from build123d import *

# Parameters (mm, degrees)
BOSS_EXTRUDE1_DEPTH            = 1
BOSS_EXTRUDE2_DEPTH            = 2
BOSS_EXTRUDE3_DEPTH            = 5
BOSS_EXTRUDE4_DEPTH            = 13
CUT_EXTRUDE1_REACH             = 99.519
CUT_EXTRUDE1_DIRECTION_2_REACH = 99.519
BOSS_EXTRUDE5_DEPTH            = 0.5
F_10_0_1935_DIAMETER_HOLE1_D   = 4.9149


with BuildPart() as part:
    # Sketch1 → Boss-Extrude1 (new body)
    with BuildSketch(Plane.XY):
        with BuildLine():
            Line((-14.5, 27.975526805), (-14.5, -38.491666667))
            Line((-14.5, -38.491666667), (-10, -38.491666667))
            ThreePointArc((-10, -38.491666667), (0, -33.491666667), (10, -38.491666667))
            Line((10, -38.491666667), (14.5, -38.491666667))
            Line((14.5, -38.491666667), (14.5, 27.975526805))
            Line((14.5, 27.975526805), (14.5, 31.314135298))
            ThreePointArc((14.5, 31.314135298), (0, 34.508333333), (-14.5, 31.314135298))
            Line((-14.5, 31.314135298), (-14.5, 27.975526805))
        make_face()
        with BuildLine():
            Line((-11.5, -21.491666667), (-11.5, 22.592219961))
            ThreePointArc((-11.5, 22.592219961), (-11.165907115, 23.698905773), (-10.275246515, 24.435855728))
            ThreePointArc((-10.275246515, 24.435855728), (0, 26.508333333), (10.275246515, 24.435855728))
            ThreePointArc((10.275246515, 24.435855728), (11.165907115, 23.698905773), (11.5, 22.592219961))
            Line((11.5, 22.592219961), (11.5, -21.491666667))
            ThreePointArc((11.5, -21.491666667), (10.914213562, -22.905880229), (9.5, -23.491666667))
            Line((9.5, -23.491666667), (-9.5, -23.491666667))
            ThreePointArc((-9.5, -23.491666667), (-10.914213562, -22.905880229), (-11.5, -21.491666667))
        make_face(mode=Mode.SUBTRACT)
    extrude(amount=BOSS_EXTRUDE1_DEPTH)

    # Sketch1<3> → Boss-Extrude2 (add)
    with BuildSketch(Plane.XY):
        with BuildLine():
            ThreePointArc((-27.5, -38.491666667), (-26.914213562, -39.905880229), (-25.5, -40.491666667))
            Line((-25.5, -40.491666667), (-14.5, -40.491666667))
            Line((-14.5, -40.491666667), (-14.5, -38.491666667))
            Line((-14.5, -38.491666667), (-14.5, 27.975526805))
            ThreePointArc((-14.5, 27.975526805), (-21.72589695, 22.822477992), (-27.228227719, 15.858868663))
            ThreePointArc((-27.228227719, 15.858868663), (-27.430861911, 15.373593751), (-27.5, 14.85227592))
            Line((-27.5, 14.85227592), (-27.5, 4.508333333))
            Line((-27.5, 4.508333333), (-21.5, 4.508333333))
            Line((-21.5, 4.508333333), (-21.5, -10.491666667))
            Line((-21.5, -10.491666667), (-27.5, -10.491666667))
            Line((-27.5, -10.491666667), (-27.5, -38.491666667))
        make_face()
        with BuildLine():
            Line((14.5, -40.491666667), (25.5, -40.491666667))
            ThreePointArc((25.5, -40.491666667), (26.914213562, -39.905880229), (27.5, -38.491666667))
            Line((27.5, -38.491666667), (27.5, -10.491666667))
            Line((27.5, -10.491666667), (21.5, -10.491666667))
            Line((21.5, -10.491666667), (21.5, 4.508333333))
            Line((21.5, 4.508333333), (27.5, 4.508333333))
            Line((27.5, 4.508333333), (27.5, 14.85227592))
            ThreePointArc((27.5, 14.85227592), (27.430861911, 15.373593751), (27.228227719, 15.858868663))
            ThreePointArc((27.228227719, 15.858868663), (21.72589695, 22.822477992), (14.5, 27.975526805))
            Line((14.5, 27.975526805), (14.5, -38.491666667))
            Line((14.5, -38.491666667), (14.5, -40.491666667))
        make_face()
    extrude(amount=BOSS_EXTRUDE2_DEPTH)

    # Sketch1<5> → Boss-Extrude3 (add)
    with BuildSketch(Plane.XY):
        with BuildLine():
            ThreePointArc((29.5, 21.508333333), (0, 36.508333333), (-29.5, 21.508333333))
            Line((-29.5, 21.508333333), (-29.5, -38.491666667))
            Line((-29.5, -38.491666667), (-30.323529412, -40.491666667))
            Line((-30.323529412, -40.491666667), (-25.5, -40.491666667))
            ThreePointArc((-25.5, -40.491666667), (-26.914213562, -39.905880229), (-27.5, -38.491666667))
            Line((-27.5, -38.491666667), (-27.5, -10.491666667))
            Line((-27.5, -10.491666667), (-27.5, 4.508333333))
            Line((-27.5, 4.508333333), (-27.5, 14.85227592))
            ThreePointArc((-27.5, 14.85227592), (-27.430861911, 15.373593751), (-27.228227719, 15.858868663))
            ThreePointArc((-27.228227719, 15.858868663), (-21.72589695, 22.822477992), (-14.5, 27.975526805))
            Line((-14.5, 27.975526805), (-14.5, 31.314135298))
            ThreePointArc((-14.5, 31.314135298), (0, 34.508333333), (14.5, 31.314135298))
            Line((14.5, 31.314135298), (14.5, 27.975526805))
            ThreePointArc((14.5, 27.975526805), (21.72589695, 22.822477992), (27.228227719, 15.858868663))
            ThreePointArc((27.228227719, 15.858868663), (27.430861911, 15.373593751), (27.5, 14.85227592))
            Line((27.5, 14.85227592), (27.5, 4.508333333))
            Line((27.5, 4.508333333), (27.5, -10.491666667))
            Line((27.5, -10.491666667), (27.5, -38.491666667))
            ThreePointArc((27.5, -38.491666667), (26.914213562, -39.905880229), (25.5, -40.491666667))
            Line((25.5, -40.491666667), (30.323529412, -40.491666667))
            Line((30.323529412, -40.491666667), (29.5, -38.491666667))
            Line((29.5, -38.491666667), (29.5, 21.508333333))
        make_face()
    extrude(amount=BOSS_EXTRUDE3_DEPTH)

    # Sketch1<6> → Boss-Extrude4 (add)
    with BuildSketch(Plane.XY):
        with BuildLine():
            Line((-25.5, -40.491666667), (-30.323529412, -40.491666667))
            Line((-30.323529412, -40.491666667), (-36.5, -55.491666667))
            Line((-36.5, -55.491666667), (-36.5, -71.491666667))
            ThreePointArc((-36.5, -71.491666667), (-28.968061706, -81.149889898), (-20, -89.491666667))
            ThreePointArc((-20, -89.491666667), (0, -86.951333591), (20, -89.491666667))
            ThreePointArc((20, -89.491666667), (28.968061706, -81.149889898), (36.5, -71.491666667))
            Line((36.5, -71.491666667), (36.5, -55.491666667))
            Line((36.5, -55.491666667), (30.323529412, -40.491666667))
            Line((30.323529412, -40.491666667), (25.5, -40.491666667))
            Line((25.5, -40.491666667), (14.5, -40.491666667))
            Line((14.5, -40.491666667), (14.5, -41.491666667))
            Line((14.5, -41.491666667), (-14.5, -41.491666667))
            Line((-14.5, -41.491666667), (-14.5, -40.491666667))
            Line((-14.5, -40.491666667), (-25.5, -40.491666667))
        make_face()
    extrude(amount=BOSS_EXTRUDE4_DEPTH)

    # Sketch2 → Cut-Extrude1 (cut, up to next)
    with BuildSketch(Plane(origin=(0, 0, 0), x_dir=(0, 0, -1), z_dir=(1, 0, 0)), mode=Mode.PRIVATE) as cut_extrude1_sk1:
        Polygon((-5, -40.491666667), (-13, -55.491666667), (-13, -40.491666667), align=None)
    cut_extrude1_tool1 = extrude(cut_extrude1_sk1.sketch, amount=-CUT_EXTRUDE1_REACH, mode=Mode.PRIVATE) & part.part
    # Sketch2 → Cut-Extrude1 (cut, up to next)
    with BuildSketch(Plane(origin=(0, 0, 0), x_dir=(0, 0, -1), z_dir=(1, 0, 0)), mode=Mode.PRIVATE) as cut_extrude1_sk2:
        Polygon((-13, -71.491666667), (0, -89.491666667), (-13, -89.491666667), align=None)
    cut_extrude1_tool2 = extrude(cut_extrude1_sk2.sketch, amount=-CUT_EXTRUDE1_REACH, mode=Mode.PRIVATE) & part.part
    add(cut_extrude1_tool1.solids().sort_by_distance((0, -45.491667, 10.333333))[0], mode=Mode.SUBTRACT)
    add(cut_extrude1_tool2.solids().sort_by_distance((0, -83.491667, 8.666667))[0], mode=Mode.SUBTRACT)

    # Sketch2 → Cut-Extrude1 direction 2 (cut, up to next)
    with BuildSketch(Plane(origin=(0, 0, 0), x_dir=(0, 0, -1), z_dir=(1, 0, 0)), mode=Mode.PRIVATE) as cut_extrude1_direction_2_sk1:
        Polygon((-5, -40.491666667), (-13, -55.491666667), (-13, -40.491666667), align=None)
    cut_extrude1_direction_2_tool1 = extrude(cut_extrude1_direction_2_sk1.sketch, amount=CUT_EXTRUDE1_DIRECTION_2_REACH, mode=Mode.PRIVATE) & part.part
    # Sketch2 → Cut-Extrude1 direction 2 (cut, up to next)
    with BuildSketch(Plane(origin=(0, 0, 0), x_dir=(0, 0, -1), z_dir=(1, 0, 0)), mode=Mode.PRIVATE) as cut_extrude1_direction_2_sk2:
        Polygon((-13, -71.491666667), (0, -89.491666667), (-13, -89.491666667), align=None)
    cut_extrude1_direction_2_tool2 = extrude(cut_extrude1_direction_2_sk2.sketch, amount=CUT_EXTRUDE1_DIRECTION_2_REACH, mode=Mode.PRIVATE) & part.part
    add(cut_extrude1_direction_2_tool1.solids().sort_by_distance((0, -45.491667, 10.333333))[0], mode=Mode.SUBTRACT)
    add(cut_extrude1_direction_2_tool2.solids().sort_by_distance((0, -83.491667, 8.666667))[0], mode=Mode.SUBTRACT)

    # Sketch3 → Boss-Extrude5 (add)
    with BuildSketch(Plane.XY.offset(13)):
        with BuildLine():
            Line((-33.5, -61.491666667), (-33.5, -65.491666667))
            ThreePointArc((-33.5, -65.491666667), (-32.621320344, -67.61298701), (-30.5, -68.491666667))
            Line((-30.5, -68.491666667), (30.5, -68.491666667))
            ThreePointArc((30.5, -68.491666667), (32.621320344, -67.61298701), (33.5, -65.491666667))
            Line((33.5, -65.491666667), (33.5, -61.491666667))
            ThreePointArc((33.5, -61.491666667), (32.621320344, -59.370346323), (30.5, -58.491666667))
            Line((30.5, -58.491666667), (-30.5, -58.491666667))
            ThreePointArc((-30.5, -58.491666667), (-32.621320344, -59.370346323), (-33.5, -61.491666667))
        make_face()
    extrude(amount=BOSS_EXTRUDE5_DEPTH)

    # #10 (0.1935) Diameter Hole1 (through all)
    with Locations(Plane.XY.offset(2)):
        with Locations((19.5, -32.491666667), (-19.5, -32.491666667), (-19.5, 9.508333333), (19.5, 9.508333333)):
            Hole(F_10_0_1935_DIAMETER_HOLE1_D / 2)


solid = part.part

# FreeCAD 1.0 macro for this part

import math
import FreeCAD as App
import Part
import Sketcher

doc = App.newDocument("Part")
body = doc.addObject("PartDesign::Body", "Body")

sketch1 = body.newObject("Sketcher::SketchObject", "Sketch")
sketch1.AttachmentSupport = (doc.getObject("XY_Plane"), [""])
sketch1.MapMode = "FlatFace"
sketch1.addGeometry([
    Part.LineSegment(App.Vector(-14.5, -38.5, 0), App.Vector(-10, -38.5, 0)),
    Part.ArcOfCircle(Part.Circle(App.Vector(0, -46, 0), App.Vector(0, 0, 1), 12.5), math.radians(37), math.radians(143)),
    Part.LineSegment(App.Vector(10, -38.5, 0), App.Vector(14.5, -38.5, 0)),
    Part.LineSegment(App.Vector(14.5, -38.5, 0), App.Vector(14.5, 31.3, 0)),
    Part.ArcOfCircle(Part.Circle(App.Vector(0, 0, 0), App.Vector(0, 0, 1), 34.5), math.radians(65), math.radians(115)),
    Part.LineSegment(App.Vector(-14.5, 31.3, 0), App.Vector(-14.5, -38.5, 0)),
    Part.ArcOfCircle(Part.Circle(App.Vector(-9.5, -21.5, 0), App.Vector(0, 0, 1), 2), math.radians(-180), math.radians(-90)),
    Part.LineSegment(App.Vector(-11.5, -21.5, 0), App.Vector(-11.5, 22.6, 0)),
    Part.ArcOfCircle(Part.Circle(App.Vector(-9.5, 22.6, 0), App.Vector(0, 0, 1), 2), math.radians(113), math.radians(180)),
    Part.ArcOfCircle(Part.Circle(App.Vector(0, 0, 0), App.Vector(0, 0, 1), 26.5), math.radians(67), math.radians(113)),
    Part.ArcOfCircle(Part.Circle(App.Vector(9.5, 22.6, 0), App.Vector(0, 0, 1), 2), math.radians(0), math.radians(67)),
    Part.LineSegment(App.Vector(11.5, 22.6, 0), App.Vector(11.5, -21.5, 0)),
    Part.ArcOfCircle(Part.Circle(App.Vector(9.5, -21.5, 0), App.Vector(0, 0, 1), 2), math.radians(-90), math.radians(0)),
    Part.LineSegment(App.Vector(9.5, -23.5, 0), App.Vector(-9.5, -23.5, 0)),
], False)
sketch1.addConstraint([
    Sketcher.Constraint("Coincident", 0, 2, 1, 2),
    Sketcher.Constraint("Coincident", 1, 1, 2, 1),
    Sketcher.Constraint("Coincident", 2, 2, 3, 1),
    Sketcher.Constraint("Coincident", 3, 2, 4, 1),
    Sketcher.Constraint("Coincident", 4, 2, 5, 1),
    Sketcher.Constraint("Coincident", 5, 2, 0, 1),
    Sketcher.Constraint("Tangent", 6, 1, 7, 1),
    Sketcher.Constraint("Tangent", 7, 2, 8, 2),
    Sketcher.Constraint("Tangent", 8, 1, 9, 2),
    Sketcher.Constraint("Tangent", 9, 1, 10, 2),
    Sketcher.Constraint("Tangent", 10, 1, 11, 1),
    Sketcher.Constraint("Tangent", 11, 2, 12, 2),
    Sketcher.Constraint("Tangent", 12, 1, 13, 1),
    Sketcher.Constraint("Tangent", 13, 2, 6, 2),
    Sketcher.Constraint("Horizontal", 0),
    Sketcher.Constraint("Horizontal", 2),
    Sketcher.Constraint("Vertical", 3),
    Sketcher.Constraint("Vertical", 5),
    Sketcher.Constraint("Vertical", 7),
    Sketcher.Constraint("Vertical", 11),
    Sketcher.Constraint("Horizontal", 13),
    Sketcher.Constraint("Coincident", 4, 3, -1, 1),
    Sketcher.Constraint("Coincident", 9, 3, -1, 1),
    Sketcher.Constraint("Equal", 6, 8),
    Sketcher.Constraint("Equal", 8, 10),
    Sketcher.Constraint("Equal", 10, 12),
    Sketcher.Constraint("Symmetric", 0, 2, 1, 1, -2),
    Sketcher.Constraint("Horizontal", 8, 3, 10, 3),
    Sketcher.Constraint("Horizontal", 3, 2, 4, 2),
    Sketcher.Constraint("Radius", 6, 2.0),
    Sketcher.Constraint("Radius", 1, 12.5),
    Sketcher.Constraint("DistanceX", 13, 2, 13, 1, 19.0),
    Sketcher.Constraint("DistanceX", 0, 1, 0, 2, 4.5),
    Sketcher.Constraint("DistanceX", 0, 2, -1, 1, 10.0),
    Sketcher.Constraint("DistanceY", 0, 2, 6, 3, 17.0),
    Sketcher.Constraint("DistanceY", 3, 1, 3, 2, 69.805802),
    Sketcher.Constraint("Radius", 4, 34.508333),
    Sketcher.Constraint("Radius", 9, 26.508333),
])
pad1 = body.newObject("PartDesign::Pad", "Pad")
pad1.Profile = sketch1
pad1.Length = 1

sketch2 = body.newObject("Sketcher::SketchObject", "Sketch001")
sketch2.AttachmentSupport = (doc.getObject("XY_Plane"), [""])
sketch2.MapMode = "FlatFace"
sketch2.addGeometry([
    Part.ArcOfCircle(Part.Circle(App.Vector(-25.5, -38.5, 0), App.Vector(0, 0, 1), 2), math.radians(-180), math.radians(-90)),
    Part.LineSegment(App.Vector(-25.5, -40.5, 0), App.Vector(-14.5, -40.5, 0)),
    Part.LineSegment(App.Vector(-14.5, -40.5, 0), App.Vector(-14.5, 28, 0)),
    Part.ArcOfCircle(Part.Circle(App.Vector(0, 0, 0), App.Vector(0, 0, 1), 31.5), math.radians(117), math.radians(150)),
    Part.ArcOfCircle(Part.Circle(App.Vector(-25.5, 14.9, 0), App.Vector(0, 0, 1), 2), math.radians(150), math.radians(180)),
    Part.LineSegment(App.Vector(-27.5, 14.9, 0), App.Vector(-27.5, 4.5, 0)),
    Part.LineSegment(App.Vector(-27.5, 4.5, 0), App.Vector(-21.5, 4.5, 0)),
    Part.LineSegment(App.Vector(-21.5, 4.5, 0), App.Vector(-21.5, -10.5, 0)),
    Part.LineSegment(App.Vector(-21.5, -10.5, 0), App.Vector(-27.5, -10.5, 0)),
    Part.LineSegment(App.Vector(-27.5, -10.5, 0), App.Vector(-27.5, -38.5, 0)),
    Part.LineSegment(App.Vector(14.5, -40.5, 0), App.Vector(25.5, -40.5, 0)),
    Part.ArcOfCircle(Part.Circle(App.Vector(25.5, -38.5, 0), App.Vector(0, 0, 1), 2), math.radians(-90), math.radians(0)),
    Part.LineSegment(App.Vector(27.5, -38.5, 0), App.Vector(27.5, -10.5, 0)),
    Part.LineSegment(App.Vector(27.5, -10.5, 0), App.Vector(21.5, -10.5, 0)),
    Part.LineSegment(App.Vector(21.5, -10.5, 0), App.Vector(21.5, 4.5, 0)),
    Part.LineSegment(App.Vector(21.5, 4.5, 0), App.Vector(27.5, 4.5, 0)),
    Part.LineSegment(App.Vector(27.5, 4.5, 0), App.Vector(27.5, 14.9, 0)),
    Part.ArcOfCircle(Part.Circle(App.Vector(25.5, 14.9, 0), App.Vector(0, 0, 1), 2), math.radians(0), math.radians(30)),
    Part.ArcOfCircle(Part.Circle(App.Vector(0, 0, 0), App.Vector(0, 0, 1), 31.5), math.radians(30), math.radians(63)),
    Part.LineSegment(App.Vector(14.5, 28, 0), App.Vector(14.5, -40.5, 0)),
], False)
sketch2.addConstraint([
    Sketcher.Constraint("Tangent", 0, 2, 1, 1),
    Sketcher.Constraint("Coincident", 1, 2, 2, 1),
    Sketcher.Constraint("Coincident", 2, 2, 3, 1),
    Sketcher.Constraint("Tangent", 3, 2, 4, 1),
    Sketcher.Constraint("Tangent", 4, 2, 5, 1),
    Sketcher.Constraint("Coincident", 5, 2, 6, 1),
    Sketcher.Constraint("Coincident", 6, 2, 7, 1),
    Sketcher.Constraint("Coincident", 7, 2, 8, 1),
    Sketcher.Constraint("Coincident", 8, 2, 9, 1),
    Sketcher.Constraint("Tangent", 9, 2, 0, 1),
    Sketcher.Constraint("Tangent", 10, 2, 11, 1),
    Sketcher.Constraint("Tangent", 11, 2, 12, 1),
    Sketcher.Constraint("Coincident", 12, 2, 13, 1),
    Sketcher.Constraint("Coincident", 13, 2, 14, 1),
    Sketcher.Constraint("Coincident", 14, 2, 15, 1),
    Sketcher.Constraint("Coincident", 15, 2, 16, 1),
    Sketcher.Constraint("Tangent", 16, 2, 17, 1),
    Sketcher.Constraint("Tangent", 17, 2, 18, 1),
    Sketcher.Constraint("Coincident", 18, 2, 19, 1),
    Sketcher.Constraint("Coincident", 19, 2, 10, 1),
    Sketcher.Constraint("Horizontal", 1),
    Sketcher.Constraint("Vertical", 2),
    Sketcher.Constraint("Vertical", 5),
    Sketcher.Constraint("Horizontal", 6),
    Sketcher.Constraint("Vertical", 7),
    Sketcher.Constraint("Horizontal", 8),
    Sketcher.Constraint("Vertical", 9),
    Sketcher.Constraint("Horizontal", 10),
    Sketcher.Constraint("Vertical", 12),
    Sketcher.Constraint("Horizontal", 13),
    Sketcher.Constraint("Vertical", 14),
    Sketcher.Constraint("Horizontal", 15),
    Sketcher.Constraint("Vertical", 16),
    Sketcher.Constraint("Vertical", 19),
    Sketcher.Constraint("Coincident", 3, 3, -1, 1),
    Sketcher.Constraint("Coincident", 18, 3, -1, 1),
    Sketcher.Constraint("Equal", 0, 4),
    Sketcher.Constraint("Equal", 4, 11),
    Sketcher.Constraint("Equal", 11, 17),
    Sketcher.Constraint("Equal", 3, 18),
    Sketcher.Constraint("Symmetric", 0, 3, 11, 3, -2),
    Sketcher.Constraint("Symmetric", 7, 2, 13, 2, -2),
    Sketcher.Constraint("Symmetric", 5, 2, 15, 2, -2),
    Sketcher.Constraint("Horizontal", 2, 2, 18, 2),
    Sketcher.Constraint("Vertical", 0, 3, 4, 3),
    Sketcher.Constraint("Radius", 0, 2.0),
    Sketcher.Constraint("DistanceX", 1, 1, 1, 2, 11.0),
    Sketcher.Constraint("DistanceX", 6, 1, 6, 2, 6.0),
    Sketcher.Constraint("DistanceY", 7, 2, 7, 1, 15.0),
    Sketcher.Constraint("DistanceY", 9, 2, 9, 1, 28.0),
    Sketcher.Constraint("Radius", 3, 31.51),
    Sketcher.Constraint("DistanceX", 0, 3, 11, 3, 51.0),
    Sketcher.Constraint("DistanceY", 2, 1, 2, 2, 68.467193),
])
pad2 = body.newObject("PartDesign::Pad", "Pad001")
pad2.Profile = sketch2
pad2.Length = 2

sketch3 = body.newObject("Sketcher::SketchObject", "Sketch002")
sketch3.AttachmentSupport = (doc.getObject("XY_Plane"), [""])
sketch3.MapMode = "FlatFace"
sketch3.addGeometry([
    Part.ArcOfCircle(Part.Circle(App.Vector(0, 0, 0), App.Vector(0, 0, 1), 36.5), math.radians(36), math.radians(144)),
    Part.LineSegment(App.Vector(-29.5, 21.5, 0), App.Vector(-29.5, -38.5, 0)),
    Part.LineSegment(App.Vector(-29.5, -38.5, 0), App.Vector(-30.3, -40.5, 0)),
    Part.LineSegment(App.Vector(-30.3, -40.5, 0), App.Vector(-25.5, -40.5, 0)),
    Part.ArcOfCircle(Part.Circle(App.Vector(-25.5, -38.5, 0), App.Vector(0, 0, 1), 2), math.radians(-180), math.radians(-90)),
    Part.LineSegment(App.Vector(-27.5, -38.5, 0), App.Vector(-27.5, 14.9, 0)),
    Part.ArcOfCircle(Part.Circle(App.Vector(-25.5, 14.9, 0), App.Vector(0, 0, 1), 2), math.radians(150), math.radians(180)),
    Part.ArcOfCircle(Part.Circle(App.Vector(0, 0, 0), App.Vector(0, 0, 1), 31.5), math.radians(117), math.radians(150)),
    Part.LineSegment(App.Vector(-14.5, 28, 0), App.Vector(-14.5, 31.3, 0)),
    Part.ArcOfCircle(Part.Circle(App.Vector(0, 0, 0), App.Vector(0, 0, 1), 34.5), math.radians(65), math.radians(115)),
    Part.LineSegment(App.Vector(14.5, 31.3, 0), App.Vector(14.5, 28, 0)),
    Part.ArcOfCircle(Part.Circle(App.Vector(0, 0, 0), App.Vector(0, 0, 1), 31.5), math.radians(30), math.radians(63)),
    Part.ArcOfCircle(Part.Circle(App.Vector(25.5, 14.9, 0), App.Vector(0, 0, 1), 2), math.radians(0), math.radians(30)),
    Part.LineSegment(App.Vector(27.5, 14.9, 0), App.Vector(27.5, -38.5, 0)),
    Part.ArcOfCircle(Part.Circle(App.Vector(25.5, -38.5, 0), App.Vector(0, 0, 1), 2), math.radians(-90), math.radians(0)),
    Part.LineSegment(App.Vector(25.5, -40.5, 0), App.Vector(30.3, -40.5, 0)),
    Part.LineSegment(App.Vector(30.3, -40.5, 0), App.Vector(29.5, -38.5, 0)),
    Part.LineSegment(App.Vector(29.5, -38.5, 0), App.Vector(29.5, 21.5, 0)),
], False)
sketch3.addConstraint([
    Sketcher.Constraint("Coincident", 0, 2, 1, 1),
    Sketcher.Constraint("Coincident", 1, 2, 2, 1),
    Sketcher.Constraint("Coincident", 2, 2, 3, 1),
    Sketcher.Constraint("Tangent", 3, 2, 4, 2),
    Sketcher.Constraint("Tangent", 4, 1, 5, 1),
    Sketcher.Constraint("Tangent", 5, 2, 6, 2),
    Sketcher.Constraint("Tangent", 6, 1, 7, 2),
    Sketcher.Constraint("Coincident", 7, 1, 8, 1),
    Sketcher.Constraint("Coincident", 8, 2, 9, 2),
    Sketcher.Constraint("Coincident", 9, 1, 10, 1),
    Sketcher.Constraint("Coincident", 10, 2, 11, 2),
    Sketcher.Constraint("Tangent", 11, 1, 12, 2),
    Sketcher.Constraint("Tangent", 12, 1, 13, 1),
    Sketcher.Constraint("Tangent", 13, 2, 14, 2),
    Sketcher.Constraint("Tangent", 14, 1, 15, 1),
    Sketcher.Constraint("Coincident", 15, 2, 16, 1),
    Sketcher.Constraint("Coincident", 16, 2, 17, 1),
    Sketcher.Constraint("Coincident", 17, 2, 0, 1),
    Sketcher.Constraint("Vertical", 1),
    Sketcher.Constraint("Horizontal", 3),
    Sketcher.Constraint("Vertical", 5),
    Sketcher.Constraint("Vertical", 8),
    Sketcher.Constraint("Vertical", 10),
    Sketcher.Constraint("Vertical", 13),
    Sketcher.Constraint("Horizontal", 15),
    Sketcher.Constraint("Vertical", 17),
    Sketcher.Constraint("Coincident", 0, 3, -1, 1),
    Sketcher.Constraint("Coincident", 7, 3, -1, 1),
    Sketcher.Constraint("Coincident", 9, 3, -1, 1),
    Sketcher.Constraint("Coincident", 11, 3, -1, 1),
    Sketcher.Constraint("Equal", 4, 6),
    Sketcher.Constraint("Equal", 7, 11),
    Sketcher.Constraint("Equal", 6, 12),
    Sketcher.Constraint("Equal", 12, 14),
    Sketcher.Constraint("Symmetric", 4, 3, 14, 3, -2),
    Sketcher.Constraint("Symmetric", 1, 2, 16, 2, -2),
    Sketcher.Constraint("Horizontal", 14, 3, 1, 2),
    Sketcher.Constraint("Horizontal", 8, 2, 9, 1),
    Sketcher.Constraint("Equal", 3, 15),
    Sketcher.Constraint("Radius", 4, 2.0),
    Sketcher.Constraint("DistanceY", 1, 2, 1, 1, 60.0),
    Sketcher.Constraint("Radius", 7, 31.51),
    Sketcher.Constraint("DistanceX", 6, 3, 12, 3, 51.0),
    Sketcher.Constraint("DistanceX", 0, 2, 6, 3, 4.0),
    Sketcher.Constraint("DistanceX", 0, 2, 7, 1, 15.0),
    Sketcher.Constraint("Radius", 0, 36.508333),
    Sketcher.Constraint("Radius", 9, 34.508333),
    Sketcher.Constraint("DistanceX", 3, 1, 3, 2, 4.823529),
])
pad3 = body.newObject("PartDesign::Pad", "Pad002")
pad3.Profile = sketch3
pad3.Length = 5

sketch4 = body.newObject("Sketcher::SketchObject", "Sketch003")
sketch4.AttachmentSupport = (doc.getObject("XY_Plane"), [""])
sketch4.MapMode = "FlatFace"
sketch4.addGeometry([
    Part.LineSegment(App.Vector(-30.3, -40.5, 0), App.Vector(-36.5, -55.5, 0)),
    Part.LineSegment(App.Vector(-36.5, -55.5, 0), App.Vector(-36.5, -71.5, 0)),
    Part.ArcOfCircle(Part.Circle(App.Vector(27.8, -29.1, 0), App.Vector(0, 0, 1), 77), math.radians(-146.61), math.radians(-128.37)),
    Part.ArcOfCircle(Part.Circle(App.Vector(0, -167, 0), App.Vector(0, 0, 1), 80), math.radians(76), math.radians(104)),
    Part.ArcOfCircle(Part.Circle(App.Vector(-27.8, -29.1, 0), App.Vector(0, 0, 1), 77), math.radians(-51.63), math.radians(-33.39)),
    Part.LineSegment(App.Vector(36.5, -71.5, 0), App.Vector(36.5, -55.5, 0)),
    Part.LineSegment(App.Vector(36.5, -55.5, 0), App.Vector(30.3, -40.5, 0)),
    Part.LineSegment(App.Vector(30.3, -40.5, 0), App.Vector(14.5, -40.5, 0)),
    Part.LineSegment(App.Vector(14.5, -40.5, 0), App.Vector(14.5, -41.5, 0)),
    Part.LineSegment(App.Vector(14.5, -41.5, 0), App.Vector(-14.5, -41.5, 0)),
    Part.LineSegment(App.Vector(-14.5, -41.5, 0), App.Vector(-14.5, -40.5, 0)),
    Part.LineSegment(App.Vector(-14.5, -40.5, 0), App.Vector(-30.3, -40.5, 0)),
], False)
sketch4.addConstraint([
    Sketcher.Constraint("Coincident", 0, 2, 1, 1),
    Sketcher.Constraint("Coincident", 1, 2, 2, 1),
    Sketcher.Constraint("Coincident", 2, 2, 3, 2),
    Sketcher.Constraint("Coincident", 3, 1, 4, 1),
    Sketcher.Constraint("Coincident", 4, 2, 5, 1),
    Sketcher.Constraint("Coincident", 5, 2, 6, 1),
    Sketcher.Constraint("Coincident", 6, 2, 7, 1),
    Sketcher.Constraint("Coincident", 7, 2, 8, 1),
    Sketcher.Constraint("Coincident", 8, 2, 9, 1),
    Sketcher.Constraint("Coincident", 9, 2, 10, 1),
    Sketcher.Constraint("Coincident", 10, 2, 11, 1),
    Sketcher.Constraint("Coincident", 11, 2, 0, 1),
    Sketcher.Constraint("Vertical", 1),
    Sketcher.Constraint("Vertical", 5),
    Sketcher.Constraint("Horizontal", 7),
    Sketcher.Constraint("Vertical", 8),
    Sketcher.Constraint("Horizontal", 9),
    Sketcher.Constraint("Vertical", 10),
    Sketcher.Constraint("Horizontal", 11),
    Sketcher.Constraint("Equal", 2, 4),
    Sketcher.Constraint("Symmetric", 2, 3, 4, 3, -2),
    Sketcher.Constraint("Symmetric", 0, 2, 5, 2, -2),
    Sketcher.Constraint("Symmetric", 7, 2, 10, 2, -2),
    Sketcher.Constraint("PointOnObject", 3, 3, -2),
    Sketcher.Constraint("Equal", 7, 11),
    Sketcher.Constraint("Radius", 2, 77.0),
    Sketcher.Constraint("Radius", 3, 80.0),
    Sketcher.Constraint("DistanceX", 9, 2, 9, 1, 29.0),
    Sketcher.Constraint("DistanceY", 1, 2, 1, 1, 16.0),
    Sketcher.Constraint("DistanceY", 8, 2, 8, 1, 1.0),
    Sketcher.Constraint("DistanceX", 2, 2, -1, 1, 20.0),
    Sketcher.Constraint("DistanceY", 2, 2, 1, 2, 18.0),
    Sketcher.Constraint("DistanceX", 1, 2, 4, 2, 73.0),
    Sketcher.Constraint("DistanceY", 5, 2, 6, 2, 15.0),
    Sketcher.Constraint("DistanceX", 7, 2, 7, 1, 15.823529),
    Sketcher.Constraint("DistanceY", 2, 3, -1, 1, 29.119093),
])
pad4 = body.newObject("PartDesign::Pad", "Pad003")
pad4.Profile = sketch4
pad4.Length = 13

sketch5 = body.newObject("Sketcher::SketchObject", "Sketch004")
sketch5.AttachmentSupport = (doc.getObject("YZ_Plane"), [""])
sketch5.MapMode = "FlatFace"
sketch5.addGeometry([
    Part.LineSegment(App.Vector(-55, 13, 0), App.Vector(-40, 5, 0)),
    Part.LineSegment(App.Vector(-40, 5, 0), App.Vector(-40, 13, 0)),
    Part.LineSegment(App.Vector(-40, 13, 0), App.Vector(-55, 13, 0)),
], False)
sketch5.addConstraint([
    Sketcher.Constraint("Coincident", 0, 2, 1, 1),
    Sketcher.Constraint("Coincident", 1, 2, 2, 1),
    Sketcher.Constraint("Coincident", 2, 2, 0, 1),
    Sketcher.Constraint("Vertical", 1),
    Sketcher.Constraint("Horizontal", 2),
    Sketcher.Constraint("DistanceX", 2, 2, 2, 1, 15.0),
    Sketcher.Constraint("DistanceY", 1, 1, 1, 2, 8.0),
    Sketcher.Constraint("DistanceY", -1, 1, 0, 2, 5.0),
    Sketcher.Constraint("DistanceX", 0, 2, -1, 1, 40.491667),
])
pocket1 = body.newObject("PartDesign::Pocket", "Pocket")
pocket1.Profile = sketch5
pocket1.Type = "UpToFirst"

sketch6 = body.newObject("Sketcher::SketchObject", "Sketch005")
sketch6.AttachmentSupport = (doc.getObject("YZ_Plane"), [""])
sketch6.MapMode = "FlatFace"
sketch6.addGeometry([
    Part.LineSegment(App.Vector(-89, 0, 0), App.Vector(-71, 13, 0)),
    Part.LineSegment(App.Vector(-71, 13, 0), App.Vector(-89, 13, 0)),
    Part.LineSegment(App.Vector(-89, 13, 0), App.Vector(-89, 0, 0)),
], False)
sketch6.addConstraint([
    Sketcher.Constraint("Coincident", 0, 2, 1, 1),
    Sketcher.Constraint("Coincident", 1, 2, 2, 1),
    Sketcher.Constraint("Coincident", 2, 2, 0, 1),
    Sketcher.Constraint("Horizontal", 1),
    Sketcher.Constraint("Vertical", 2),
    Sketcher.Constraint("PointOnObject", 2, 2, -1),
    Sketcher.Constraint("DistanceX", 1, 2, 1, 1, 18.0),
    Sketcher.Constraint("DistanceY", 2, 2, 2, 1, 13.0),
    Sketcher.Constraint("DistanceX", 0, 2, -1, 1, 71.491667),
])
pocket2 = body.newObject("PartDesign::Pocket", "Pocket001")
pocket2.Profile = sketch6
pocket2.Type = "UpToFirst"

sketch7 = body.newObject("Sketcher::SketchObject", "Sketch006")
sketch7.AttachmentSupport = (doc.getObject("YZ_Plane"), [""])
sketch7.MapMode = "FlatFace"
sketch7.addGeometry([
    Part.LineSegment(App.Vector(-55, 13, 0), App.Vector(-40, 5, 0)),
    Part.LineSegment(App.Vector(-40, 5, 0), App.Vector(-40, 13, 0)),
    Part.LineSegment(App.Vector(-40, 13, 0), App.Vector(-55, 13, 0)),
], False)
sketch7.addConstraint([
    Sketcher.Constraint("Coincident", 0, 2, 1, 1),
    Sketcher.Constraint("Coincident", 1, 2, 2, 1),
    Sketcher.Constraint("Coincident", 2, 2, 0, 1),
    Sketcher.Constraint("Vertical", 1),
    Sketcher.Constraint("Horizontal", 2),
    Sketcher.Constraint("DistanceX", 2, 2, 2, 1, 15.0),
    Sketcher.Constraint("DistanceY", 1, 1, 1, 2, 8.0),
    Sketcher.Constraint("DistanceY", -1, 1, 0, 2, 5.0),
    Sketcher.Constraint("DistanceX", 0, 2, -1, 1, 40.491667),
])
pocket3 = body.newObject("PartDesign::Pocket", "Pocket002")
pocket3.Profile = sketch7
pocket3.Type = "UpToFirst"
pocket3.Reversed = True

sketch8 = body.newObject("Sketcher::SketchObject", "Sketch007")
sketch8.AttachmentSupport = (doc.getObject("YZ_Plane"), [""])
sketch8.MapMode = "FlatFace"
sketch8.addGeometry([
    Part.LineSegment(App.Vector(-89, 0, 0), App.Vector(-71, 13, 0)),
    Part.LineSegment(App.Vector(-71, 13, 0), App.Vector(-89, 13, 0)),
    Part.LineSegment(App.Vector(-89, 13, 0), App.Vector(-89, 0, 0)),
], False)
sketch8.addConstraint([
    Sketcher.Constraint("Coincident", 0, 2, 1, 1),
    Sketcher.Constraint("Coincident", 1, 2, 2, 1),
    Sketcher.Constraint("Coincident", 2, 2, 0, 1),
    Sketcher.Constraint("Horizontal", 1),
    Sketcher.Constraint("Vertical", 2),
    Sketcher.Constraint("PointOnObject", 2, 2, -1),
    Sketcher.Constraint("DistanceX", 1, 2, 1, 1, 18.0),
    Sketcher.Constraint("DistanceY", 2, 2, 2, 1, 13.0),
    Sketcher.Constraint("DistanceX", 0, 2, -1, 1, 71.491667),
])
pocket4 = body.newObject("PartDesign::Pocket", "Pocket003")
pocket4.Profile = sketch8
pocket4.Type = "UpToFirst"
pocket4.Reversed = True

sketch9 = body.newObject("Sketcher::SketchObject", "Sketch008")
sketch9.AttachmentSupport = (doc.getObject("XY_Plane"), [""])
sketch9.MapMode = "FlatFace"
sketch9.AttachmentOffset = App.Placement(App.Vector(0, 0, 13), App.Rotation())
sketch9.addGeometry([
    Part.LineSegment(App.Vector(-33.5, -61.5, 0), App.Vector(-33.5, -65.5, 0)),
    Part.ArcOfCircle(Part.Circle(App.Vector(-30.5, -65.5, 0), App.Vector(0, 0, 1), 3), math.radians(180), math.radians(270)),
    Part.LineSegment(App.Vector(-30.5, -68.5, 0), App.Vector(30.5, -68.5, 0)),
    Part.ArcOfCircle(Part.Circle(App.Vector(30.5, -65.5, 0), App.Vector(0, 0, 1), 3), math.radians(-90), math.radians(0)),
    Part.LineSegment(App.Vector(33.5, -65.5, 0), App.Vector(33.5, -61.5, 0)),
    Part.ArcOfCircle(Part.Circle(App.Vector(30.5, -61.5, 0), App.Vector(0, 0, 1), 3), math.radians(0), math.radians(90)),
    Part.LineSegment(App.Vector(30.5, -58.5, 0), App.Vector(-30.5, -58.5, 0)),
    Part.ArcOfCircle(Part.Circle(App.Vector(-30.5, -61.5, 0), App.Vector(0, 0, 1), 3), math.radians(90), math.radians(180)),
], False)
sketch9.addConstraint([
    Sketcher.Constraint("Tangent", 0, 2, 1, 1),
    Sketcher.Constraint("Tangent", 1, 2, 2, 1),
    Sketcher.Constraint("Tangent", 2, 2, 3, 1),
    Sketcher.Constraint("Tangent", 3, 2, 4, 1),
    Sketcher.Constraint("Tangent", 4, 2, 5, 1),
    Sketcher.Constraint("Tangent", 5, 2, 6, 1),
    Sketcher.Constraint("Tangent", 6, 2, 7, 1),
    Sketcher.Constraint("Tangent", 7, 2, 0, 1),
    Sketcher.Constraint("Vertical", 0),
    Sketcher.Constraint("Horizontal", 2),
    Sketcher.Constraint("Vertical", 4),
    Sketcher.Constraint("Horizontal", 6),
    Sketcher.Constraint("Equal", 1, 3),
    Sketcher.Constraint("Equal", 3, 5),
    Sketcher.Constraint("Equal", 5, 7),
    Sketcher.Constraint("Radius", 1, 3.0),
    Sketcher.Constraint("DistanceX", 2, 1, 2, 2, 61.0),
    Sketcher.Constraint("DistanceY", 0, 2, 0, 1, 4.0),
    Sketcher.Constraint("DistanceX", 1, 3, -1, 1, 30.5),
    Sketcher.Constraint("DistanceY", 1, 3, -1, 1, 65.491667),
])
pad5 = body.newObject("PartDesign::Pad", "Pad004")
pad5.Profile = sketch9
pad5.Length = 0.5

sketch10 = body.newObject("Sketcher::SketchObject", "Sketch009")
sketch10.AttachmentSupport = (doc.getObject("XY_Plane"), [""])
sketch10.MapMode = "FlatFace"
sketch10.AttachmentOffset = App.Placement(App.Vector(0, 0, 2), App.Rotation())
sketch10.addGeometry([
    Part.Circle(App.Vector(19.5, -32.5, 0), App.Vector(0, 0, 1), 2.5),
    Part.Circle(App.Vector(-19.5, -32.5, 0), App.Vector(0, 0, 1), 2.5),
    Part.Circle(App.Vector(-19.5, 9.5, 0), App.Vector(0, 0, 1), 2.5),
    Part.Circle(App.Vector(19.5, 9.5, 0), App.Vector(0, 0, 1), 2.5),
], False)
sketch10.addConstraint([
    Sketcher.Constraint("Equal", 0, 1),
    Sketcher.Constraint("Equal", 1, 2),
    Sketcher.Constraint("Equal", 2, 3),
    Sketcher.Constraint("Symmetric", 0, 3, 1, 3, -2),
    Sketcher.Constraint("Symmetric", 2, 3, 3, 3, -2),
    Sketcher.Constraint("Vertical", 1, 3, 2, 3),
    Sketcher.Constraint("DistanceX", 1, 3, 0, 3, 39.0),
    Sketcher.Constraint("DistanceY", 1, 3, 2, 3, 42.0),
    Sketcher.Constraint("Diameter", 0, 4.9149),
    Sketcher.Constraint("DistanceY", 0, 3, -1, 1, 32.491667),
])
doc.recompute()
hole = body.newObject("PartDesign::Hole", "Hole")
hole.Profile = sketch10
hole.ThreadType = "None"
hole.Diameter = 4.9149
hole.DepthType = "ThroughAll"

doc.recompute()
